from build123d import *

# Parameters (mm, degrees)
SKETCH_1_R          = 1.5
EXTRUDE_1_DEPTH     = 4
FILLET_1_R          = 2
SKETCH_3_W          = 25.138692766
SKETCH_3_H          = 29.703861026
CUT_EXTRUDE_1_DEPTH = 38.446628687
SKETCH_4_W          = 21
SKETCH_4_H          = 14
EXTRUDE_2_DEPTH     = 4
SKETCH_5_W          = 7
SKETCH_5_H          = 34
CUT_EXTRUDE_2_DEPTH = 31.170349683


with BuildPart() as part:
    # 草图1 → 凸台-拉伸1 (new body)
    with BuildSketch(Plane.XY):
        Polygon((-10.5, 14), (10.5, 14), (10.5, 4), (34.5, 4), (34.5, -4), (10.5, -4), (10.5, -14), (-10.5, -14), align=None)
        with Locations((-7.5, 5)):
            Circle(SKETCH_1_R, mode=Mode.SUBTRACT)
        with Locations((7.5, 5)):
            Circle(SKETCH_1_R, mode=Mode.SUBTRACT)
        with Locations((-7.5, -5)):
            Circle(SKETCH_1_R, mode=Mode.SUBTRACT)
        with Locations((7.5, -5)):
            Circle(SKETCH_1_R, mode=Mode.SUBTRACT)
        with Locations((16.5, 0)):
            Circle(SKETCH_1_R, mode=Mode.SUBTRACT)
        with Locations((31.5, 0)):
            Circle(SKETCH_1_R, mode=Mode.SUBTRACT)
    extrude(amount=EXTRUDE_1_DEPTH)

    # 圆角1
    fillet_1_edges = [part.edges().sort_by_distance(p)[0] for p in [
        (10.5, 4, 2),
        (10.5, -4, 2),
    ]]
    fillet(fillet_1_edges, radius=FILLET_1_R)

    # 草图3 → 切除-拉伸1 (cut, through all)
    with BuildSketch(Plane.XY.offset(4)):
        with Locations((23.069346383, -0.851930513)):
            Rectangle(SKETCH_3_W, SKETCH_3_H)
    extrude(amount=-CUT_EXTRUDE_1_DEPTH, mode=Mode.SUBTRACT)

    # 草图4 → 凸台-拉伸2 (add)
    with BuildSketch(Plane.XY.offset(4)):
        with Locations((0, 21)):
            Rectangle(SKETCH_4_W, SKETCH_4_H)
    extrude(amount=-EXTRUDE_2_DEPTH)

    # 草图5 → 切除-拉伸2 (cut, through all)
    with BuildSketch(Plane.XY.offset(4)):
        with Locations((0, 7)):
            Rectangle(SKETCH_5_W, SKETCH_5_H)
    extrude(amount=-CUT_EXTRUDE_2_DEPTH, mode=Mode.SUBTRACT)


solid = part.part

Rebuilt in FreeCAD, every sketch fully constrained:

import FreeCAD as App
import Part
import Sketcher

V = App.Vector


def edges_at(feature, points):
    """Names of the edges that pass closest to the given points."""
    edges = feature.Shape.Edges
    near = lambda p: min(range(len(edges)), key=lambda i: edges[i].distToShape(Part.Vertex(*p))[0])
    return sorted({f"Edge{near(p) + 1}" for p in points})

doc = App.newDocument("Part")
params = doc.addObject("Spreadsheet::Sheet", "Params")
for row, (alias, value) in enumerate([
    ("sketch1_diameter", "3 mm"),
    ("sketch1_width", "21 mm"),
    ("sketch1_width2", "24 mm"),
    ("sketch1_height", "28 mm"),
    ("sketch1_height2", "10 mm"),
    ("pad1_length", "4 mm"),
    ("fillet_radius", "2 mm"),
    ("sketch3_width", "21 mm"),
    ("sketch3_height", "14 mm"),
    ("pad2_length", "4 mm"),
    ("sketch4_width", "7 mm"),
    ("sketch4_height", "34 mm"),
], start=1):
    params.set(f"A{row}", alias)
    params.set(f"B{row}", "=" + value)
    params.setAlias(f"B{row}", alias)

body = doc.addObject("PartDesign::Body", "Body")

# Sketch on XY plane
sketch1 = body.newObject("Sketcher::SketchObject", "Sketch")
sketch1.AttachmentSupport = (doc.getObject("XY_Plane"), [""])
sketch1.MapMode = "FlatFace"
sketch1.addGeometry([
    Part.LineSegment(V(10.5, 14, 0), V(-10.5, 14, 0)),  # 0
    Part.LineSegment(V(-10.5, 14, 0), V(-10.5, -14, 0)),  # 1
    Part.LineSegment(V(-10.5, -14, 0), V(10.5, -14, 0)),  # 2
    Part.LineSegment(V(10.5, -14, 0), V(10.5, -4, 0)),  # 3
    Part.LineSegment(V(10.5, -4, 0), V(34.5, -4, 0)),  # 4
    Part.LineSegment(V(34.5, -4, 0), V(34.5, 4, 0)),  # 5
    Part.LineSegment(V(34.5, 4, 0), V(10.5, 4, 0)),  # 6
    Part.LineSegment(V(10.5, 4, 0), V(10.5, 14, 0)),  # 7
    Part.Circle(V(7.5, -5, 0), V(0, 0, 1), 1.5),  # 8
    Part.Circle(V(-7.5, -5, 0), V(0, 0, 1), 1.5),  # 9
    Part.Circle(V(31.5, 0, 0), V(0, 0, 1), 1.5),  # 10
    Part.Circle(V(16.5, 0, 0), V(0, 0, 1), 1.5),  # 11
    Part.Circle(V(7.5, 5, 0), V(0, 0, 1), 1.5),  # 12
    Part.Circle(V(-7.5, 5, 0), V(0, 0, 1), 1.5),  # 13
], False)
sketch1.addConstraint([
    Sketcher.Constraint("Coincident", 0, 2, 1, 1),
    Sketcher.Constraint("Coincident", 1, 2, 2, 1),
    Sketcher.Constraint("Coincident", 2, 2, 3, 1),
    Sketcher.Constraint("Coincident", 3, 2, 4, 1),
    Sketcher.Constraint("Coincident", 4, 2, 5, 1),
    Sketcher.Constraint("Coincident", 5, 2, 6, 1),
    Sketcher.Constraint("Coincident", 6, 2, 7, 1),
    Sketcher.Constraint("Coincident", 7, 2, 0, 1),
    Sketcher.Constraint("Horizontal", 0),
    Sketcher.Constraint("Vertical", 1),
    Sketcher.Constraint("Horizontal", 2),
    Sketcher.Constraint("Vertical", 3),
    Sketcher.Constraint("Horizontal", 4),
    Sketcher.Constraint("Vertical", 5),
    Sketcher.Constraint("Horizontal", 6),
    Sketcher.Constraint("Vertical", 7),
    Sketcher.Constraint("Equal", 8, 9),
    Sketcher.Constraint("Equal", 9, 10),
    Sketcher.Constraint("Equal", 10, 11),
    Sketcher.Constraint("Equal", 11, 12),
    Sketcher.Constraint("Equal", 12, 13),
    Sketcher.Constraint("Symmetric", 9, 3, 12, 3, -1, 1),
    Sketcher.Constraint("Symmetric", 8, 3, 13, 3, -1, 1),
    Sketcher.Constraint("Symmetric", 0, 2, 2, 2, -1, 1),
    Sketcher.Constraint("Symmetric", 8, 3, 9, 3, -2),
    Sketcher.Constraint("Symmetric", 3, 2, 6, 2, -1),
    Sketcher.Constraint("PointOnObject", 10, 3, -1),
    Sketcher.Constraint("PointOnObject", 11, 3, -1),
    Sketcher.Constraint("Diameter", 8, 3.0),
    Sketcher.Constraint("DistanceX", 0, 2, 0, 1, 21.0),
    Sketcher.Constraint("DistanceX", 4, 1, 4, 2, 24.0),
    Sketcher.Constraint("DistanceY", 1, 2, 1, 1, 28.0),
    Sketcher.Constraint("DistanceY", 3, 1, 3, 2, 10.0),
    Sketcher.Constraint("DistanceY", 8, 3, -1, 1, 5.0),
    Sketcher.Constraint("DistanceX", 9, 3, 8, 3, 15.0),
    Sketcher.Constraint("DistanceX", 8, 3, 10, 3, 24.0),
    Sketcher.Constraint("DistanceX", 8, 3, 11, 3, 9.0),
])
sketch1.setExpression("Constraints[28]", "Params.sketch1_diameter")
sketch1.setExpression("Constraints[29]", "Params.sketch1_width")
sketch1.setExpression("Constraints[30]", "Params.sketch1_width2")
sketch1.setExpression("Constraints[31]", "Params.sketch1_height")
sketch1.setExpression("Constraints[32]", "Params.sketch1_height2")
pad1 = body.newObject("PartDesign::Pad", "Pad")
pad1.Profile = sketch1
pad1.setExpression("Length", "Params.pad1_length")
doc.recompute()

fillet = body.newObject("PartDesign::Fillet", "Fillet")
fillet.Base = (pad1, edges_at(pad1, [(10.5, 4, 2), (10.5, -4, 2)]))
fillet.setExpression("Radius", "Params.fillet_radius")

# Sketch on XY plane
sketch2 = body.newObject("Sketcher::SketchObject", "Sketch001")
sketch2.AttachmentSupport = (doc.getObject("XY_Plane"), [""])
sketch2.MapMode = "FlatFace"
sketch2.AttachmentOffset = App.Placement(V(0, 0, 4), App.Rotation())
sketch2.addGeometry([
    Part.LineSegment(V(10.5, 14, 0), V(10.5, -15.703861, 0)),
    Part.LineSegment(V(10.5, -15.703861, 0), V(35.638693, -15.703861, 0)),
    Part.LineSegment(V(35.638693, -15.703861, 0), V(35.638693, 14, 0)),
    Part.LineSegment(V(35.638693, 14, 0), V(10.5, 14, 0)),
], False)
sketch2.addConstraint([
    Sketcher.Constraint("Coincident", 0, 2, 1, 1),
    Sketcher.Constraint("Coincident", 1, 2, 2, 1),
    Sketcher.Constraint("Coincident", 2, 2, 3, 1),
    Sketcher.Constraint("Coincident", 3, 2, 0, 1),
    Sketcher.Constraint("Vertical", 0),
    Sketcher.Constraint("Horizontal", 1),
    Sketcher.Constraint("Vertical", 2),
    Sketcher.Constraint("Horizontal", 3),
    Sketcher.Constraint("DistanceY", -1, 1, 2, 2, 14.0),
    Sketcher.Constraint("DistanceX", -1, 1, 0, 2, 10.5),
    Sketcher.Constraint("DistanceY", 0, 2, 0, 1, 29.703861),
    Sketcher.Constraint("DistanceX", 1, 1, 1, 2, 25.138693),
])
pocket1 = body.newObject("PartDesign::Pocket", "Pocket")
pocket1.Profile = sketch2
pocket1.Type = "ThroughAll"

# Sketch on XY plane
sketch3 = body.newObject("Sketcher::SketchObject", "Sketch002")
sketch3.AttachmentSupport = (doc.getObject("XY_Plane"), [""])
sketch3.MapMode = "FlatFace"
sketch3.AttachmentOffset = App.Placement(V(0, 0, 4), App.Rotation())
sketch3.addGeometry([
    Part.LineSegment(V(-10.5, 28, 0), V(-10.5, 14, 0)),
    Part.LineSegment(V(-10.5, 14, 0), V(10.5, 14, 0)),
    Part.LineSegment(V(10.5, 14, 0), V(10.5, 28, 0)),
    Part.LineSegment(V(10.5, 28, 0), V(-10.5, 28, 0)),
], False)
sketch3.addConstraint([
    Sketcher.Constraint("Coincident", 0, 2, 1, 1),
    Sketcher.Constraint("Coincident", 1, 2, 2, 1),
    Sketcher.Constraint("Coincident", 2, 2, 3, 1),
    Sketcher.Constraint("Coincident", 3, 2, 0, 1),
    Sketcher.Constraint("Vertical", 0),
    Sketcher.Constraint("Horizontal", 1),
    Sketcher.Constraint("Vertical", 2),
    Sketcher.Constraint("Horizontal", 3),
    Sketcher.Constraint("DistanceX", 1, 1, 1, 2, 21.0),
    Sketcher.Constraint("DistanceY", 0, 2, 0, 1, 14.0),
    Sketcher.Constraint("DistanceY", -1, 1, 0, 2, 14.0),
    Sketcher.Constraint("DistanceX", 0, 2, -1, 1, 10.5),
])
sketch3.setExpression("Constraints[8]", "Params.sketch3_width")
sketch3.setExpression("Constraints[9]", "Params.sketch3_height")
pad2 = body.newObject("PartDesign::Pad", "Pad001")
pad2.Profile = sketch3
pad2.setExpression("Length", "Params.pad2_length")
pad2.Reversed = True

# Sketch on XY plane
sketch4 = body.newObject("Sketcher::SketchObject", "Sketch003")
sketch4.AttachmentSupport = (doc.getObject("XY_Plane"), [""])
sketch4.MapMode = "FlatFace"
sketch4.AttachmentOffset = App.Placement(V(0, 0, 4), App.Rotation())
sketch4.addGeometry([
    Part.LineSegment(V(-3.5, 24, 0), V(-3.5, -10, 0)),
    Part.LineSegment(V(-3.5, -10, 0), V(3.5, -10, 0)),
    Part.LineSegment(V(3.5, -10, 0), V(3.5, 24, 0)),
    Part.LineSegment(V(3.5, 24, 0), V(-3.5, 24, 0)),
], False)
sketch4.addConstraint([
    Sketcher.Constraint("Coincident", 0, 2, 1, 1),
    Sketcher.Constraint("Coincident", 1, 2, 2, 1),
    Sketcher.Constraint("Coincident", 2, 2, 3, 1),
    Sketcher.Constraint("Coincident", 3, 2, 0, 1),
    Sketcher.Constraint("Vertical", 0),
    Sketcher.Constraint("Horizontal", 1),
    Sketcher.Constraint("Vertical", 2),
    Sketcher.Constraint("Horizontal", 3),
    Sketcher.Constraint("DistanceX", 1, 1, 1, 2, 7.0),
    Sketcher.Constraint("DistanceY", 0, 2, 0, 1, 34.0),
    Sketcher.Constraint("DistanceY", 0, 2, -1, 1, 10.0),
    Sketcher.Constraint("DistanceX", 0, 2, -1, 1, 3.5),
])
sketch4.setExpression("Constraints[8]", "Params.sketch4_width")
sketch4.setExpression("Constraints[9]", "Params.sketch4_height")
pocket2 = body.newObject("PartDesign::Pocket", "Pocket001")
pocket2.Profile = sketch4
pocket2.Type = "ThroughAll"

doc.recompute()
